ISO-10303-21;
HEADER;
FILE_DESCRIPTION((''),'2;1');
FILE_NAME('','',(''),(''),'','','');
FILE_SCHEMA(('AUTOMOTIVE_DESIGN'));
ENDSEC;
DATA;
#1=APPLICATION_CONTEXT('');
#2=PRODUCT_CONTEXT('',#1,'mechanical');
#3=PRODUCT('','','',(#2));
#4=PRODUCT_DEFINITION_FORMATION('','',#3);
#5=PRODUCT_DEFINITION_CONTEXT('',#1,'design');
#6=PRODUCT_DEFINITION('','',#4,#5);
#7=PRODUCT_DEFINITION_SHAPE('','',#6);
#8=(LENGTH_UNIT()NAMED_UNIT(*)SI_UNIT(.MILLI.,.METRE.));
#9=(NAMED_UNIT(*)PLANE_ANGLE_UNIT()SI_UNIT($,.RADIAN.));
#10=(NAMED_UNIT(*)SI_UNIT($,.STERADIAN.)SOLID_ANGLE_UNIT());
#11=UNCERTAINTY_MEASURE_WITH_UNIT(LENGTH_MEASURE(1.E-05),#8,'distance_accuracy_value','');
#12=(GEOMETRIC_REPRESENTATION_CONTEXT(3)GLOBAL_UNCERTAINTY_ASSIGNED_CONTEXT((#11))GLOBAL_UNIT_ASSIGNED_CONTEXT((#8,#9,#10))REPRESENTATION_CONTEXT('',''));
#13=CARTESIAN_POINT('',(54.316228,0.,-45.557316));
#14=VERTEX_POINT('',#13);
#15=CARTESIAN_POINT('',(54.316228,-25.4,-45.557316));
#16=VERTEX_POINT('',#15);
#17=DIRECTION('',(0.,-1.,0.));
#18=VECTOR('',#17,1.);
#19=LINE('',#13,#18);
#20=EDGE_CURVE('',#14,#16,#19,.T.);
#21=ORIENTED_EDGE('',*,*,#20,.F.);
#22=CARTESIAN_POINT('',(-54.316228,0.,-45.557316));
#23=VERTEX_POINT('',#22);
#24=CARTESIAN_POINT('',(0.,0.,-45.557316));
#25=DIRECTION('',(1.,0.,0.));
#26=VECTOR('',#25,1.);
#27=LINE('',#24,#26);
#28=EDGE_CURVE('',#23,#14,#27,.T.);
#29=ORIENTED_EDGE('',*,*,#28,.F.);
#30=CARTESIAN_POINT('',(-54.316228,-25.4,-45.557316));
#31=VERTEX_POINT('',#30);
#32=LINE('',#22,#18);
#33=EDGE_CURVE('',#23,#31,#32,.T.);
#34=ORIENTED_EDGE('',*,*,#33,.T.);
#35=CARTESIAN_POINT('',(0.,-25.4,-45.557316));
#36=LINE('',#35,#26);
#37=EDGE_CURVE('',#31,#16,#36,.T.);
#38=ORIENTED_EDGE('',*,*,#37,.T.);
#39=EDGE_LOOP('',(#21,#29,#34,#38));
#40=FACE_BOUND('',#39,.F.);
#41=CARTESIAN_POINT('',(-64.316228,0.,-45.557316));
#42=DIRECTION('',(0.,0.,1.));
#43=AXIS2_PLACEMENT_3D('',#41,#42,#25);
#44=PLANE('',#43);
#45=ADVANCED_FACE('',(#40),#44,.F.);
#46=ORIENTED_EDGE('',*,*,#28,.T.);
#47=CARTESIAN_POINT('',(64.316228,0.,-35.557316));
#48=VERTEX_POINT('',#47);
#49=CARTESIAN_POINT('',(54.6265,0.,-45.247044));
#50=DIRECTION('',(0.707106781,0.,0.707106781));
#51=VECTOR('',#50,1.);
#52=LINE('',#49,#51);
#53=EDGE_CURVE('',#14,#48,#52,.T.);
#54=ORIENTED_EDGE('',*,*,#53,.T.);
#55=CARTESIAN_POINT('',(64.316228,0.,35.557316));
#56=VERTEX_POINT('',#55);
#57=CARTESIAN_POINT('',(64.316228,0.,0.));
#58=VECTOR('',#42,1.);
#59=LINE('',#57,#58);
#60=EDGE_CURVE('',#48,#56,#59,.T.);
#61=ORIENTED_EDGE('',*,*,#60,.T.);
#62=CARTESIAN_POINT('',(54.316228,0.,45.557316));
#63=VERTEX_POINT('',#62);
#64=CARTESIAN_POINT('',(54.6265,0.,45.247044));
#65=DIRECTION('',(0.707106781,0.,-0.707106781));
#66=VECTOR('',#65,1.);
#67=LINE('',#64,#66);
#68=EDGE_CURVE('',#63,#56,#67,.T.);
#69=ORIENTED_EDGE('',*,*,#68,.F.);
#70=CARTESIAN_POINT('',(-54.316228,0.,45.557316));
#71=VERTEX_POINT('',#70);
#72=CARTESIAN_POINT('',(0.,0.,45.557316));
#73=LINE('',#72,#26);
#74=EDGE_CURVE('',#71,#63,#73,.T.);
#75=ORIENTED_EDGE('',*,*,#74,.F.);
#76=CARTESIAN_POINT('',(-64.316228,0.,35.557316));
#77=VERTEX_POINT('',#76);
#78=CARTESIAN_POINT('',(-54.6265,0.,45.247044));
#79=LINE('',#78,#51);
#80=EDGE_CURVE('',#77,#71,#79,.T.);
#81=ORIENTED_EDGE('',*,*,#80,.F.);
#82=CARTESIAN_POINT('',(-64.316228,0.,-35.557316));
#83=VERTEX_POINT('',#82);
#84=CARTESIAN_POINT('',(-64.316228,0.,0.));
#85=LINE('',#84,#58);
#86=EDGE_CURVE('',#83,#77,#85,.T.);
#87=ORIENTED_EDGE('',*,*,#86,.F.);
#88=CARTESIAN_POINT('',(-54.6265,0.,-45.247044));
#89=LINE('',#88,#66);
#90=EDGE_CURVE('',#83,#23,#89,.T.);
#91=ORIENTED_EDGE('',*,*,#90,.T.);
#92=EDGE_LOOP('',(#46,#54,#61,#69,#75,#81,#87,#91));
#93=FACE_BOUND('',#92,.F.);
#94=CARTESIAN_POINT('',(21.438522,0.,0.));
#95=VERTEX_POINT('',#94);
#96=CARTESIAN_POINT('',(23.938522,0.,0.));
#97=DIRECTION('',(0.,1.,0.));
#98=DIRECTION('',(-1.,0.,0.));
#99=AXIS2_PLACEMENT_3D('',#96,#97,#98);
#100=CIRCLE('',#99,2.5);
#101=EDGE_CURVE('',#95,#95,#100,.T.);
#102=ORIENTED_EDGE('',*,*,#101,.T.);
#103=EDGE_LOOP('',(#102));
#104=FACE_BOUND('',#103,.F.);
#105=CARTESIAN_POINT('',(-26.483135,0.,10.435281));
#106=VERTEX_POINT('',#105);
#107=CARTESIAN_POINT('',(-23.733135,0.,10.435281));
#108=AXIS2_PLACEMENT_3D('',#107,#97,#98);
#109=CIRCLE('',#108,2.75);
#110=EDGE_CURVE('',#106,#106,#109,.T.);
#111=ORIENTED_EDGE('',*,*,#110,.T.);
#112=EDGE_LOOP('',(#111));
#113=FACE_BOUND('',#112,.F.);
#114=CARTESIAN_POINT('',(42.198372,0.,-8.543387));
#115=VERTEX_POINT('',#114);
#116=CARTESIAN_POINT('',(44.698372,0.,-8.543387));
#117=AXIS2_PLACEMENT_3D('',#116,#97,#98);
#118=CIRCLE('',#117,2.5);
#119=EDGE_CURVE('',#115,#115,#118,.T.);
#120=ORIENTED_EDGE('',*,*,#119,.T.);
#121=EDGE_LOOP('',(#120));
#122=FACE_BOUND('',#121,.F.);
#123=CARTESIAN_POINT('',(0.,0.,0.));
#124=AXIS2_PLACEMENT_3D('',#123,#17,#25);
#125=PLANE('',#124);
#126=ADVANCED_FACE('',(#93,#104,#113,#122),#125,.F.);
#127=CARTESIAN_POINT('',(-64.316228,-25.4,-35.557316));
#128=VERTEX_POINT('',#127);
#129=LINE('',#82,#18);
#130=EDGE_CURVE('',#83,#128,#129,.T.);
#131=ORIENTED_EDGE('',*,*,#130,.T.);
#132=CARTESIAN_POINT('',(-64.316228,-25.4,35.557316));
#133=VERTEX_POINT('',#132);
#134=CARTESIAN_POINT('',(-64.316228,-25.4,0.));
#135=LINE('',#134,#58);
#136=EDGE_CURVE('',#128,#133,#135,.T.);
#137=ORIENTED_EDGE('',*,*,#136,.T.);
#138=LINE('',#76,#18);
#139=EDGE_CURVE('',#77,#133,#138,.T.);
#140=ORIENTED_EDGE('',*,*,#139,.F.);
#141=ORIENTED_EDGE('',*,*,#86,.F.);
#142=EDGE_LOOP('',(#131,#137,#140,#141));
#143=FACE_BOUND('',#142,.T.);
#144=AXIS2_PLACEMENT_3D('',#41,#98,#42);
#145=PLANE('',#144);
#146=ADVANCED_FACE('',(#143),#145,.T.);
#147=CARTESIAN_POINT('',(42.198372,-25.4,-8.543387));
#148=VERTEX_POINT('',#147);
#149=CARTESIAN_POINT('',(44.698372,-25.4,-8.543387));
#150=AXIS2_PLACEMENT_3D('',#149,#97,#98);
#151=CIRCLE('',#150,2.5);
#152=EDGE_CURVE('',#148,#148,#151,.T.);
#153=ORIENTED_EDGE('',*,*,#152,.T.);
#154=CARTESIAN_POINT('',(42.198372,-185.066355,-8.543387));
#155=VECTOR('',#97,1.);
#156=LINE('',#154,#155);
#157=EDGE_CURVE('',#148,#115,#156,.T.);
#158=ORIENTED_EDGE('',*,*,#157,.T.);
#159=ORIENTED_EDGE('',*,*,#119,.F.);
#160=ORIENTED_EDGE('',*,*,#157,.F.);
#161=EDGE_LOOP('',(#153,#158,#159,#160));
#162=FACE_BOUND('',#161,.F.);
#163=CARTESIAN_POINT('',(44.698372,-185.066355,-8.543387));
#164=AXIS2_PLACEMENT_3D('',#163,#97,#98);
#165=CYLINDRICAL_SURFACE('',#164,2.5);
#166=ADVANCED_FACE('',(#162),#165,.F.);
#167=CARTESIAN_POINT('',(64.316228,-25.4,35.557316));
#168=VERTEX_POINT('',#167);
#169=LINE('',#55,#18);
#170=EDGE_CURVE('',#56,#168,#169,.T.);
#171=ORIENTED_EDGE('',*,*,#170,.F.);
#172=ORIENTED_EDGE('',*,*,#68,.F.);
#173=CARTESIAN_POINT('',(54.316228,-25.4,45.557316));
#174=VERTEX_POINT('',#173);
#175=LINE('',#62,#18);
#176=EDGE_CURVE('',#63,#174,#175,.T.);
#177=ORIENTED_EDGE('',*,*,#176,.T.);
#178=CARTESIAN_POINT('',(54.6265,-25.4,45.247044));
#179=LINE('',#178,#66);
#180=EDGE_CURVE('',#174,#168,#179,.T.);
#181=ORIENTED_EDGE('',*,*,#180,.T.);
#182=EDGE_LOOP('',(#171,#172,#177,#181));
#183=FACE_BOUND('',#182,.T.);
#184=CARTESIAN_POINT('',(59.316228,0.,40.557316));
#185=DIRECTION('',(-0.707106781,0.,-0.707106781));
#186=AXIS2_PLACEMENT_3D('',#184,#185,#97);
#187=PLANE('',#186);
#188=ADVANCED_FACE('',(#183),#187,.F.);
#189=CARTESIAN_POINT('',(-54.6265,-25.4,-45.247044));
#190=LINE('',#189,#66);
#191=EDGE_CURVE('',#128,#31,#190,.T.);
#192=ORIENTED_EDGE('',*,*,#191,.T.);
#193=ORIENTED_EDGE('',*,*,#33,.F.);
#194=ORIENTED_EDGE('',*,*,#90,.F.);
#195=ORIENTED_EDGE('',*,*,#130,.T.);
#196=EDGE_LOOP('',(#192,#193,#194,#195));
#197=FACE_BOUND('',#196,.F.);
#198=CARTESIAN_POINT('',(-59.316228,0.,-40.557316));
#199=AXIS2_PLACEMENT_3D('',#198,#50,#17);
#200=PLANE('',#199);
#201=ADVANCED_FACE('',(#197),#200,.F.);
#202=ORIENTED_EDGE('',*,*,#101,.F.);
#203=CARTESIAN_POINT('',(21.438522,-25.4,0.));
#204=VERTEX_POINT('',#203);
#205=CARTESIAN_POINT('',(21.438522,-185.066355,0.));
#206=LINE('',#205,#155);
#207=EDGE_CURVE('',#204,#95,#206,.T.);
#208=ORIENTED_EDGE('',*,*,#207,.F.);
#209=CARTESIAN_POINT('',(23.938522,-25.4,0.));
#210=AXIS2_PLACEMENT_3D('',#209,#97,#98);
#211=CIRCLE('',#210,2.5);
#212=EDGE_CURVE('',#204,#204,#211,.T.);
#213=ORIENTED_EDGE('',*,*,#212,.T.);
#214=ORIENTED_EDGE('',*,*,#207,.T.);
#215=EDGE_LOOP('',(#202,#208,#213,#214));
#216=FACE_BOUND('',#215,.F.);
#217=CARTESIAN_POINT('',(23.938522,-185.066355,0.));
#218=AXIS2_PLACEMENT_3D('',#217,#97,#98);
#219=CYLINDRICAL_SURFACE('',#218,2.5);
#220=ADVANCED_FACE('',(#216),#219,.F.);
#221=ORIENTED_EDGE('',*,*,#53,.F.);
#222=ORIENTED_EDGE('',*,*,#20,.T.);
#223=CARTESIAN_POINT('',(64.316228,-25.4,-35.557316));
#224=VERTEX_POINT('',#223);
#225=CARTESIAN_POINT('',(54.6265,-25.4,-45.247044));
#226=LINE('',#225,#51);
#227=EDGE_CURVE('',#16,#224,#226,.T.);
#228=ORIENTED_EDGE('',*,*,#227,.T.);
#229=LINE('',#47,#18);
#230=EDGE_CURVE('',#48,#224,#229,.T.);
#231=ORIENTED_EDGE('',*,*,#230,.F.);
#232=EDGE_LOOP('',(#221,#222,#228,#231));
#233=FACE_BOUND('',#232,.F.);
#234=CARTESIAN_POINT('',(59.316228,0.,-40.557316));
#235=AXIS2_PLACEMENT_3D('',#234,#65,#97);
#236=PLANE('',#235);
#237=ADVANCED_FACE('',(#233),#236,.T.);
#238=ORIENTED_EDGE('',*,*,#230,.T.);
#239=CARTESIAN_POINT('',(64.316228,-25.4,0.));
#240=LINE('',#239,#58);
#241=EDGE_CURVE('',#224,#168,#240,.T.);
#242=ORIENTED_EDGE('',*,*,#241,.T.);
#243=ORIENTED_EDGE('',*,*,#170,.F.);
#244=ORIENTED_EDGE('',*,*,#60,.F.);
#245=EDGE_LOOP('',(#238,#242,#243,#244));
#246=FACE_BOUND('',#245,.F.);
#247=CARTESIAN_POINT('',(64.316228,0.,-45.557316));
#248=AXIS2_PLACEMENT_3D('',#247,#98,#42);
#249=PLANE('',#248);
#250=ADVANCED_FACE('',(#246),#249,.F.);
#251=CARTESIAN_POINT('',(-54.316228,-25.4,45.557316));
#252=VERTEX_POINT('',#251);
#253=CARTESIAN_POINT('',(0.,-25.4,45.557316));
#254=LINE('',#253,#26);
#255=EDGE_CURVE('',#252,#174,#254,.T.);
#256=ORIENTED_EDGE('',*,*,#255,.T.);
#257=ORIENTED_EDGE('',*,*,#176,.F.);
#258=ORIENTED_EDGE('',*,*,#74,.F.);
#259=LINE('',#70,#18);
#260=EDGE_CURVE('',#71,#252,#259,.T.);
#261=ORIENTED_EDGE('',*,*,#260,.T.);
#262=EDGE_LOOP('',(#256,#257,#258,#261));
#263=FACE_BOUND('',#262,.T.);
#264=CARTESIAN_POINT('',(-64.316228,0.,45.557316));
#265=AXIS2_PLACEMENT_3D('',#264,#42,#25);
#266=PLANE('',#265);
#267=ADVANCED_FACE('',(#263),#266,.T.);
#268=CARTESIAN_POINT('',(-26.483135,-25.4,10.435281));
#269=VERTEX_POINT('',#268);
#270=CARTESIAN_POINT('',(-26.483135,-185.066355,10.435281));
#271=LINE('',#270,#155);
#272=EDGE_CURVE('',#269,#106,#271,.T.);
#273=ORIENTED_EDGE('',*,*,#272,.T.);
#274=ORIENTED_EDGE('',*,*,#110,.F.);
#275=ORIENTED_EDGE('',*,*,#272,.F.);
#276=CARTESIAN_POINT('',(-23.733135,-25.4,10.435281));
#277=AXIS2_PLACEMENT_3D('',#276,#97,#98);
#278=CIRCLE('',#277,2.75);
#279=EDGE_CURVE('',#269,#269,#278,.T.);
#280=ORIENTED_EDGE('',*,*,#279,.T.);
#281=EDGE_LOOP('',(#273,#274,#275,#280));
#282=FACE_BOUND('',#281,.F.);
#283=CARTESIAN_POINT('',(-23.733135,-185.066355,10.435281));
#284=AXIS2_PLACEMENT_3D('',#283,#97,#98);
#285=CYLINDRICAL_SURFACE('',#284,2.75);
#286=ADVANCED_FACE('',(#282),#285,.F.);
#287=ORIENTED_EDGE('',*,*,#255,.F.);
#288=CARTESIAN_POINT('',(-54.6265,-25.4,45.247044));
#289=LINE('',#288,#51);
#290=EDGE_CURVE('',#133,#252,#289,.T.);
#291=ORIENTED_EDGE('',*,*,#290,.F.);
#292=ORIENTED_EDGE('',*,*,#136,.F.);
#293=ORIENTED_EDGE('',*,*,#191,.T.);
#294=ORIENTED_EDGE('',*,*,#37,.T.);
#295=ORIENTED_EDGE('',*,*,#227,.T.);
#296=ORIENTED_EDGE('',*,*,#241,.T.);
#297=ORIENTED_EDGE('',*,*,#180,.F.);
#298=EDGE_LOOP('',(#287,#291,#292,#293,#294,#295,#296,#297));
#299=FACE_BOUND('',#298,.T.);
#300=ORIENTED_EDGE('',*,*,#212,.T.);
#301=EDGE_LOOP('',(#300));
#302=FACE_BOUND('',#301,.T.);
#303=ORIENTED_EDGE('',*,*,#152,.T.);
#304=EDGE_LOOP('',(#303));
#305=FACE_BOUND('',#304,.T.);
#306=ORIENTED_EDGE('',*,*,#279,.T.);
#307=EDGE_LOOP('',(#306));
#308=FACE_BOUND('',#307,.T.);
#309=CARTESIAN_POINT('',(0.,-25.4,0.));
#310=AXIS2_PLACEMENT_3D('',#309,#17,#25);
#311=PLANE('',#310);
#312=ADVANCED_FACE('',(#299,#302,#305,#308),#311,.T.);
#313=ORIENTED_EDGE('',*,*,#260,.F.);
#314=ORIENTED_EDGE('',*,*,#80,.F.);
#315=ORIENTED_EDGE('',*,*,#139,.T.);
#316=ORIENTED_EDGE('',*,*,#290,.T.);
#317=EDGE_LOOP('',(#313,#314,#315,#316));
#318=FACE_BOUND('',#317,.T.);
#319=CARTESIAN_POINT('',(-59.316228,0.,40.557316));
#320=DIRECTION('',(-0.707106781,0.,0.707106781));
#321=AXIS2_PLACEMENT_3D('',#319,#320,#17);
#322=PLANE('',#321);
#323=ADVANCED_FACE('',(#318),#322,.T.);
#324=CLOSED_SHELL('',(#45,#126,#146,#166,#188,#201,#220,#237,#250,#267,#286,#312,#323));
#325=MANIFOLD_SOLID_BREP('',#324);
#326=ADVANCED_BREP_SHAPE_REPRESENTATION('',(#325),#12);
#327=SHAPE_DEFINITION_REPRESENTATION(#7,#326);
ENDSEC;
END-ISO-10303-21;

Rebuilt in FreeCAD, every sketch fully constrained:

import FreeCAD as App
import Part
import Sketcher
Q = App.Units.Quantity


def edges_at(feature, points):
    """Names of the edges that pass closest to the given points."""
    edges = feature.Shape.Edges
    near = lambda p: min(range(len(edges)), key=lambda i: edges[i].distToShape(Part.Vertex(*p))[0])
    return sorted({f"Edge{near(p) + 1}" for p in points})


def add_polygon(sketch, points):
    """Adds a closed chain of lines whose ends are joined by coincident constraints."""
    first, n = sketch.GeometryCount, len(points)
    for a, b in zip(points, points[1:] + points[:1]):
        sketch.addGeometry(Part.LineSegment(App.Vector(*a, 0), App.Vector(*b, 0)), False)
    for i in range(n):
        sketch.addConstraint(Sketcher.Constraint("Coincident", first + i, 2, first + (i + 1) % n, 1))

doc = App.newDocument("Part")
body = doc.addObject("PartDesign::Body", "Body")

sketch1 = doc.addObject("Sketcher::SketchObject", "Sketch")
body.addObject(sketch1)
sketch1.AttachmentSupport = (doc.XZ_Plane, [""])
sketch1.MapMode = "FlatFace"
add_polygon(sketch1, [(-64.316228, 45.557316), (-64.316228, -45.557316), (64.316228, -45.557316), (64.316228, 45.557316)])
sketch1.addConstraint(Sketcher.Constraint("Vertical", 0))
sketch1.addConstraint(Sketcher.Constraint("Horizontal", 1))
sketch1.addConstraint(Sketcher.Constraint("Vertical", 2))
sketch1.addConstraint(Sketcher.Constraint("Horizontal", 3))
sketch1.addConstraint(Sketcher.Constraint("Symmetric", 0, 2, 2, 2, -1, 1))
sketch1.addConstraint(Sketcher.Constraint("DistanceX", 1, 1, 1, 2, Q("128.632456 mm")))
sketch1.addConstraint(Sketcher.Constraint("DistanceY", 0, 2, 0, 1, Q("91.114633 mm")))
pad1 = doc.addObject("PartDesign::Pad", "Pad")
body.addObject(pad1)
pad1.Profile = sketch1
pad1.Length = 25.4

sketch2 = doc.addObject("Sketcher::SketchObject", "Sketch001")
body.addObject(sketch2)
sketch2.AttachmentSupport = (doc.XZ_Plane, [""])
sketch2.MapMode = "FlatFace"
sketch2.AttachmentOffset = App.Placement(App.Vector(0, 0, 25.4), App.Rotation())
sketch2.addGeometry(Part.Circle(App.Vector(23.938522, 0, 0), App.Vector(0, 0, 1), 2.5), False)
sketch2.addGeometry(Part.Circle(App.Vector(44.698372, -8.543387, 0), App.Vector(0, 0, 1), 2.5), False)
sketch2.addConstraint(Sketcher.Constraint("Equal", 0, 1))
sketch2.addConstraint(Sketcher.Constraint("PointOnObject", 0, 3, -1))
sketch2.addConstraint(Sketcher.Constraint("Diameter", 0, Q("5 mm")))
sketch2.addConstraint(Sketcher.Constraint("DistanceX", -1, 1, 0, 3, Q("23.938522 mm")))
sketch2.addConstraint(Sketcher.Constraint("DistanceX", 0, 3, 1, 3, Q("20.759851 mm")))
sketch2.addConstraint(Sketcher.Constraint("DistanceY", 1, 3, -1, 1, Q("8.543387 mm")))
doc.recompute()
hole = doc.addObject("PartDesign::Hole", "Hole")
body.addObject(hole)
hole.Profile = sketch2
hole.ThreadType = "None"
hole.Diameter = 5
hole.DepthType = "ThroughAll"
doc.recompute()

chamfer = doc.addObject("PartDesign::Chamfer", "Chamfer")
body.addObject(chamfer)
chamfer.Base = (hole, edges_at(hole, [
    (64.316, -12.7, 45.557),
    (64.316, -12.7, -45.557),
    (-64.316, -12.7, -45.557),
    (-64.316, -12.7, 45.557),
]))
chamfer.Size = 10

sketch3 = doc.addObject("Sketcher::SketchObject", "Sketch002")
body.addObject(sketch3)
sketch3.AttachmentSupport = (doc.XZ_Plane, [""])
sketch3.MapMode = "FlatFace"
sketch3.AttachmentOffset = App.Placement(App.Vector(0, 0, 25.4), App.Rotation())
sketch3.addGeometry(Part.Circle(App.Vector(-23.733135, 10.435281, 0), App.Vector(0, 0, 1), 2.75), False)
sketch3.addConstraint(Sketcher.Constraint("Diameter", 0, Q("5.5 mm")))
sketch3.addConstraint(Sketcher.Constraint("DistanceY", -1, 1, 0, 3, Q("10.435281 mm")))
sketch3.addConstraint(Sketcher.Constraint("DistanceX", 0, 3, -1, 1, Q("23.733135 mm")))
doc.recompute()
hole2 = doc.addObject("PartDesign::Hole", "Hole001")
body.addObject(hole2)
hole2.Profile = sketch3
hole2.ThreadType = "None"
hole2.Diameter = 5.5
hole2.DepthType = "ThroughAll"

doc.recompute()
